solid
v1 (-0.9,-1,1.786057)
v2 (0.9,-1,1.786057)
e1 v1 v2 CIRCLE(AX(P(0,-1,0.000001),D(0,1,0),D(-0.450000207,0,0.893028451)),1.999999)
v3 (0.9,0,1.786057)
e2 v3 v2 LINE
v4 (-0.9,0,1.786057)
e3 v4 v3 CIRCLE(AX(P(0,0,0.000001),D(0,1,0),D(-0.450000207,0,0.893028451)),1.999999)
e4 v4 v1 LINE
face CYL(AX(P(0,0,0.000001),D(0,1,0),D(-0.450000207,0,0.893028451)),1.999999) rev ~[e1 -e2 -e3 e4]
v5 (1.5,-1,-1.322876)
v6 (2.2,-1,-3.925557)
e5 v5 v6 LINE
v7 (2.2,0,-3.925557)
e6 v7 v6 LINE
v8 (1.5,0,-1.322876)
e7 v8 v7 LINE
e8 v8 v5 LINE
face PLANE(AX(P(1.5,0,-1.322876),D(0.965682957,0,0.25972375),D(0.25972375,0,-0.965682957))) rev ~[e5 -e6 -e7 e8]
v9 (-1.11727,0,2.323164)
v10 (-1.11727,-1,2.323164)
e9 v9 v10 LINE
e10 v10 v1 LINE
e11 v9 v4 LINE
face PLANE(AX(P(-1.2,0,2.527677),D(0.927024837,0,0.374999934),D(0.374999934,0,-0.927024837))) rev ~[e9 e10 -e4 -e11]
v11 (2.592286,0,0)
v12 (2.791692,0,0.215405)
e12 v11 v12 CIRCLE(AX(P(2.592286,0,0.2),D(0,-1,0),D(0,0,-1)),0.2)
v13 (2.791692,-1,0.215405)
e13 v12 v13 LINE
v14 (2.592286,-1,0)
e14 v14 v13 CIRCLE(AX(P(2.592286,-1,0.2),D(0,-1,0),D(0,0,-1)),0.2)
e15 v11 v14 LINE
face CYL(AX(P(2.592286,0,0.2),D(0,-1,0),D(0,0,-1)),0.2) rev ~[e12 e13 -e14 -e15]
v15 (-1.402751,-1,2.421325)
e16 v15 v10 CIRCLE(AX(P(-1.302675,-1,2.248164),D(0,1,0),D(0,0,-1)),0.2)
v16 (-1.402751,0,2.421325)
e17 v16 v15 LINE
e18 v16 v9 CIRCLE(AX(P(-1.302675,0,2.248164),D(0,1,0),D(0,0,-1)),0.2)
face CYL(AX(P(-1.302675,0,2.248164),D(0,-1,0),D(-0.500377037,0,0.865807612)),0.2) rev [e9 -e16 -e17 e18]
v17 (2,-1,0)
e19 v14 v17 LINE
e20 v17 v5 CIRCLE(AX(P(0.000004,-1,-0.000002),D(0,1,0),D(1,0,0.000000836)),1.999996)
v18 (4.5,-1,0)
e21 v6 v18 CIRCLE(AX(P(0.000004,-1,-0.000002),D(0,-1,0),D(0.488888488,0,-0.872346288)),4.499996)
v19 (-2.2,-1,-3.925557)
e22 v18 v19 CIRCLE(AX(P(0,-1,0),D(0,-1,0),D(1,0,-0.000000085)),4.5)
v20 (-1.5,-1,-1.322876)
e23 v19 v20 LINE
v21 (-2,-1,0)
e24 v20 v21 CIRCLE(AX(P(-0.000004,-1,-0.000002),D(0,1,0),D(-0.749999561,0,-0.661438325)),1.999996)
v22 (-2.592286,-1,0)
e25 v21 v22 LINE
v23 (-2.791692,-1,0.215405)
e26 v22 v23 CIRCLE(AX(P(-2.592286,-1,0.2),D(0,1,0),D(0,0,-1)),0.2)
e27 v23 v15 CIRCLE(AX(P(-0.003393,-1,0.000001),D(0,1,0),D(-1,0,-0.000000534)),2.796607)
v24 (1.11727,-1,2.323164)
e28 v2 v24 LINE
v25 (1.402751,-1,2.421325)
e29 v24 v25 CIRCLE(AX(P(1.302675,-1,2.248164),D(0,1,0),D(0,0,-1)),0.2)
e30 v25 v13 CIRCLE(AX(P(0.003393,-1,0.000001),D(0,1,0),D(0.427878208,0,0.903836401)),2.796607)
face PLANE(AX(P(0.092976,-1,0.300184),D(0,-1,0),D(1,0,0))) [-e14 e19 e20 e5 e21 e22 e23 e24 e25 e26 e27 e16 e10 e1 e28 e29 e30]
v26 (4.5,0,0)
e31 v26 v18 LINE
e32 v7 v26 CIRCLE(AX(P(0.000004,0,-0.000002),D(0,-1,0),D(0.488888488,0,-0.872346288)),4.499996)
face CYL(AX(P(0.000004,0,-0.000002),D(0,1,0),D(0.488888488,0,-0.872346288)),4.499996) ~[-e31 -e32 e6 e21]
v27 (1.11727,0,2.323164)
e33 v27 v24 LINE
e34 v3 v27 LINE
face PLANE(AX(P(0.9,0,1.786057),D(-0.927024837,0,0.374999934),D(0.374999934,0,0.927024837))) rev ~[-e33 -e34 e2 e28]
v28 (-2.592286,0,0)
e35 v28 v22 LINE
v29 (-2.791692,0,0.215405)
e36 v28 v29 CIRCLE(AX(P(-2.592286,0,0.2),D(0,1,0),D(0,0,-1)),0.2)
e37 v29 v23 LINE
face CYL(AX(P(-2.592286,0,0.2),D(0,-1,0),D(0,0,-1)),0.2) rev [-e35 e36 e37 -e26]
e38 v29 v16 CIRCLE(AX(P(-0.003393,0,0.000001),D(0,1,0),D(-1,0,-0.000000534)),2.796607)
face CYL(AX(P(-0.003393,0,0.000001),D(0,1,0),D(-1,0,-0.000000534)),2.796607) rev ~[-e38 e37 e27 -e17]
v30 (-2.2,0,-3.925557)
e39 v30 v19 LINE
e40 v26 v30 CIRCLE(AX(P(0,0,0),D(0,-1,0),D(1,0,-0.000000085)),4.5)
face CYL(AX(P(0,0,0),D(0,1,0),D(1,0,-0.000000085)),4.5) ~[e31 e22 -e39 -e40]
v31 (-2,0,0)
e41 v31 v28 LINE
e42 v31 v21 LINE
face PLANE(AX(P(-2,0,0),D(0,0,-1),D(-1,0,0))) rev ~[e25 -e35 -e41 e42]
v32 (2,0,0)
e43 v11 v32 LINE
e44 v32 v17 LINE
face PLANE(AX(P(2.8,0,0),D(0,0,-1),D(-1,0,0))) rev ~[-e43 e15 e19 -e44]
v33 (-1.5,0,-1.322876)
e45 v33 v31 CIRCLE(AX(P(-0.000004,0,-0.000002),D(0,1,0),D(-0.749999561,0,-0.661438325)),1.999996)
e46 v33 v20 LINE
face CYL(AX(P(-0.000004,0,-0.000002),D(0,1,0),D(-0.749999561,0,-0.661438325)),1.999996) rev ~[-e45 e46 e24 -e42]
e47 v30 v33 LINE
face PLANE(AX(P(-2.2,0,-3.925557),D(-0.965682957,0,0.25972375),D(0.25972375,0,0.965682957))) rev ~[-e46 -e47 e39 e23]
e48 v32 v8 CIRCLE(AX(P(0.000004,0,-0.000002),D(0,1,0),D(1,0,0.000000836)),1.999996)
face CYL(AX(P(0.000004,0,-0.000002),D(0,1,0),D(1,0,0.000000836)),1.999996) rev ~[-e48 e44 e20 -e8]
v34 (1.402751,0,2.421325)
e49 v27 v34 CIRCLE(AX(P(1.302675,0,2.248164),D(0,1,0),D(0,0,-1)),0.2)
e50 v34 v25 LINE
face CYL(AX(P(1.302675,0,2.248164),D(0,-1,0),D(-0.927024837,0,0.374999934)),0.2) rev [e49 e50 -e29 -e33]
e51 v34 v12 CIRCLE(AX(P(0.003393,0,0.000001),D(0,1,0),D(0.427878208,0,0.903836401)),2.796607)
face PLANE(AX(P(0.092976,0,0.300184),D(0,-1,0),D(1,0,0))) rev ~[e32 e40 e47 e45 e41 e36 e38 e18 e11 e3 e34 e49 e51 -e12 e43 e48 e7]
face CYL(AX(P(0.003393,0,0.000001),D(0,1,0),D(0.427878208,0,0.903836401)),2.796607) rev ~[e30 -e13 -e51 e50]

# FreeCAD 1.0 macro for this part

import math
import FreeCAD as App
import Part
import Sketcher


def edges_at(feature, points):
    """Names of the edges that pass closest to the given points."""
    edges = feature.Shape.Edges
    near = lambda p: min(range(len(edges)), key=lambda i: edges[i].distToShape(Part.Vertex(*p))[0])
    return sorted({f"Edge{near(p) + 1}" for p in points})

doc = App.newDocument("Part")
body = doc.addObject("PartDesign::Body", "Body")

sketch1 = doc.addObject("Sketcher::SketchObject", "Sketch")
body.addObject(sketch1)
sketch1.AttachmentSupport = (doc.XZ_Plane, [""])
sketch1.MapMode = "FlatFace"
sketch1.addGeometry([
    Part.LineSegment(App.Vector(2.8, 0, 0), App.Vector(2, 0, 0)),
    Part.ArcOfCircle(Part.Circle(App.Vector(0.000004, -0.000002, 0), App.Vector(0, 0, 1), 1.999996), math.radians(-41.40966), math.radians(0.000048)),
    Part.LineSegment(App.Vector(1.5, -1.322876, 0), App.Vector(2.2, -3.925557, 0)),
    Part.ArcOfCircle(Part.Circle(App.Vector(0.000004, -0.000002, 0), App.Vector(0, 0, 1), 4.499996), math.radians(-60.732449), math.radians(0.000023)),
    Part.ArcOfCircle(Part.Circle(App.Vector(0, 0, 0), App.Vector(0, 0, 1), 4.5), math.radians(-0.000005), math.radians(240.732424)),
    Part.LineSegment(App.Vector(-2.2, -3.925557, 0), App.Vector(-1.5, -1.322876, 0)),
    Part.ArcOfCircle(Part.Circle(App.Vector(-0.000004, -0.000002, 0), App.Vector(0, 0, 1), 1.999996), math.radians(179.999952), math.radians(221.40966)),
    Part.LineSegment(App.Vector(-2, 0, 0), App.Vector(-2.8, 0, 0)),
    Part.ArcOfCircle(Part.Circle(App.Vector(-0.003393, 0.000001, 0), App.Vector(0, 0, 1), 2.796607), math.radians(115.332981), math.radians(180.000031)),
    Part.LineSegment(App.Vector(-1.2, 2.527677, 0), App.Vector(-0.9, 1.786057, 0)),
    Part.ArcOfCircle(Part.Circle(App.Vector(0, 0.000001, 0), App.Vector(0, 0, 1), 1.999999), math.radians(63.256303), math.radians(116.743697)),
    Part.LineSegment(App.Vector(0.9, 1.786057, 0), App.Vector(1.2, 2.527677, 0)),
    Part.ArcOfCircle(Part.Circle(App.Vector(0.003393, 0.000001, 0), App.Vector(0, 0, 1), 2.796607), math.radians(-0.000031), math.radians(64.667019)),
], False)
sketch1.addConstraint([
    Sketcher.Constraint("Coincident", 0, 2, 1, 2),
    Sketcher.Constraint("Coincident", 1, 1, 2, 1),
    Sketcher.Constraint("Coincident", 2, 2, 3, 1),
    Sketcher.Constraint("Tangent", 3, 2, 4, 1),
    Sketcher.Constraint("Coincident", 4, 2, 5, 1),
    Sketcher.Constraint("Coincident", 5, 2, 6, 2),
    Sketcher.Constraint("Coincident", 6, 1, 7, 1),
    Sketcher.Constraint("Coincident", 7, 2, 8, 2),
    Sketcher.Constraint("Coincident", 8, 1, 9, 1),
    Sketcher.Constraint("Coincident", 9, 2, 10, 2),
    Sketcher.Constraint("Coincident", 10, 1, 11, 1),
    Sketcher.Constraint("Coincident", 11, 2, 12, 2),
    Sketcher.Constraint("Coincident", 12, 1, 0, 1),
    Sketcher.Constraint("Horizontal", 0),
    Sketcher.Constraint("Horizontal", 7),
    Sketcher.Constraint("Coincident", 1, 3, -1, 1),
    Sketcher.Constraint("Coincident", 3, 3, -1, 1),
    Sketcher.Constraint("Coincident", 6, 3, -1, 1),
    Sketcher.Constraint("Coincident", 10, 3, -1, 1),
    Sketcher.Constraint("Equal", 1, 6),
    Sketcher.Constraint("Equal", 8, 12),
    Sketcher.Constraint("Symmetric", 8, 3, 12, 3, -1, 1),
    Sketcher.Constraint("Symmetric", 2, 2, 4, 2, -2),
    Sketcher.Constraint("Symmetric", 8, 1, 11, 2, -2),
    Sketcher.Constraint("PointOnObject", 0, 2, -1),
    Sketcher.Constraint("PointOnObject", 3, 2, -1),
    Sketcher.Constraint("PointOnObject", 6, 1, -1),
    Sketcher.Constraint("Horizontal", 1, 1, 5, 2),
    Sketcher.Constraint("Horizontal", 9, 2, 10, 1),
    Sketcher.Constraint("Radius", 10, 1.999999),
    Sketcher.Constraint("Radius", 4, 4.5),
    Sketcher.Constraint("DistanceX", 0, 2, 0, 1, 0.8),
    Sketcher.Constraint("DistanceX", -1, 1, 0, 2, 2.0),
    Sketcher.Constraint("DistanceX", 1, 1, 3, 2, 3.0),
    Sketcher.Constraint("Distance", 9, 0.8),
    Sketcher.Constraint("DistanceX", -1, 1, 2, 2, 2.2),
    Sketcher.Constraint("DistanceX", 8, 1, -1, 1, 1.2),
    Sketcher.Constraint("DistanceX", 9, 2, -1, 1, 0.9),
])
pad1 = doc.addObject("PartDesign::Pad", "Pad")
body.addObject(pad1)
pad1.Profile = sketch1
pad1.Length = 1
doc.recompute()

fillet = doc.addObject("PartDesign::Fillet", "Fillet")
body.addObject(fillet)
fillet.Base = (pad1, edges_at(pad1, [
    (-1.2, -0.5, 2.528),
    (1.2, -0.5, 2.528),
    (2.8, -0.5, 0),
    (-2.8, -0.5, 0),
]))
fillet.Radius = 0.2

doc.recompute()
